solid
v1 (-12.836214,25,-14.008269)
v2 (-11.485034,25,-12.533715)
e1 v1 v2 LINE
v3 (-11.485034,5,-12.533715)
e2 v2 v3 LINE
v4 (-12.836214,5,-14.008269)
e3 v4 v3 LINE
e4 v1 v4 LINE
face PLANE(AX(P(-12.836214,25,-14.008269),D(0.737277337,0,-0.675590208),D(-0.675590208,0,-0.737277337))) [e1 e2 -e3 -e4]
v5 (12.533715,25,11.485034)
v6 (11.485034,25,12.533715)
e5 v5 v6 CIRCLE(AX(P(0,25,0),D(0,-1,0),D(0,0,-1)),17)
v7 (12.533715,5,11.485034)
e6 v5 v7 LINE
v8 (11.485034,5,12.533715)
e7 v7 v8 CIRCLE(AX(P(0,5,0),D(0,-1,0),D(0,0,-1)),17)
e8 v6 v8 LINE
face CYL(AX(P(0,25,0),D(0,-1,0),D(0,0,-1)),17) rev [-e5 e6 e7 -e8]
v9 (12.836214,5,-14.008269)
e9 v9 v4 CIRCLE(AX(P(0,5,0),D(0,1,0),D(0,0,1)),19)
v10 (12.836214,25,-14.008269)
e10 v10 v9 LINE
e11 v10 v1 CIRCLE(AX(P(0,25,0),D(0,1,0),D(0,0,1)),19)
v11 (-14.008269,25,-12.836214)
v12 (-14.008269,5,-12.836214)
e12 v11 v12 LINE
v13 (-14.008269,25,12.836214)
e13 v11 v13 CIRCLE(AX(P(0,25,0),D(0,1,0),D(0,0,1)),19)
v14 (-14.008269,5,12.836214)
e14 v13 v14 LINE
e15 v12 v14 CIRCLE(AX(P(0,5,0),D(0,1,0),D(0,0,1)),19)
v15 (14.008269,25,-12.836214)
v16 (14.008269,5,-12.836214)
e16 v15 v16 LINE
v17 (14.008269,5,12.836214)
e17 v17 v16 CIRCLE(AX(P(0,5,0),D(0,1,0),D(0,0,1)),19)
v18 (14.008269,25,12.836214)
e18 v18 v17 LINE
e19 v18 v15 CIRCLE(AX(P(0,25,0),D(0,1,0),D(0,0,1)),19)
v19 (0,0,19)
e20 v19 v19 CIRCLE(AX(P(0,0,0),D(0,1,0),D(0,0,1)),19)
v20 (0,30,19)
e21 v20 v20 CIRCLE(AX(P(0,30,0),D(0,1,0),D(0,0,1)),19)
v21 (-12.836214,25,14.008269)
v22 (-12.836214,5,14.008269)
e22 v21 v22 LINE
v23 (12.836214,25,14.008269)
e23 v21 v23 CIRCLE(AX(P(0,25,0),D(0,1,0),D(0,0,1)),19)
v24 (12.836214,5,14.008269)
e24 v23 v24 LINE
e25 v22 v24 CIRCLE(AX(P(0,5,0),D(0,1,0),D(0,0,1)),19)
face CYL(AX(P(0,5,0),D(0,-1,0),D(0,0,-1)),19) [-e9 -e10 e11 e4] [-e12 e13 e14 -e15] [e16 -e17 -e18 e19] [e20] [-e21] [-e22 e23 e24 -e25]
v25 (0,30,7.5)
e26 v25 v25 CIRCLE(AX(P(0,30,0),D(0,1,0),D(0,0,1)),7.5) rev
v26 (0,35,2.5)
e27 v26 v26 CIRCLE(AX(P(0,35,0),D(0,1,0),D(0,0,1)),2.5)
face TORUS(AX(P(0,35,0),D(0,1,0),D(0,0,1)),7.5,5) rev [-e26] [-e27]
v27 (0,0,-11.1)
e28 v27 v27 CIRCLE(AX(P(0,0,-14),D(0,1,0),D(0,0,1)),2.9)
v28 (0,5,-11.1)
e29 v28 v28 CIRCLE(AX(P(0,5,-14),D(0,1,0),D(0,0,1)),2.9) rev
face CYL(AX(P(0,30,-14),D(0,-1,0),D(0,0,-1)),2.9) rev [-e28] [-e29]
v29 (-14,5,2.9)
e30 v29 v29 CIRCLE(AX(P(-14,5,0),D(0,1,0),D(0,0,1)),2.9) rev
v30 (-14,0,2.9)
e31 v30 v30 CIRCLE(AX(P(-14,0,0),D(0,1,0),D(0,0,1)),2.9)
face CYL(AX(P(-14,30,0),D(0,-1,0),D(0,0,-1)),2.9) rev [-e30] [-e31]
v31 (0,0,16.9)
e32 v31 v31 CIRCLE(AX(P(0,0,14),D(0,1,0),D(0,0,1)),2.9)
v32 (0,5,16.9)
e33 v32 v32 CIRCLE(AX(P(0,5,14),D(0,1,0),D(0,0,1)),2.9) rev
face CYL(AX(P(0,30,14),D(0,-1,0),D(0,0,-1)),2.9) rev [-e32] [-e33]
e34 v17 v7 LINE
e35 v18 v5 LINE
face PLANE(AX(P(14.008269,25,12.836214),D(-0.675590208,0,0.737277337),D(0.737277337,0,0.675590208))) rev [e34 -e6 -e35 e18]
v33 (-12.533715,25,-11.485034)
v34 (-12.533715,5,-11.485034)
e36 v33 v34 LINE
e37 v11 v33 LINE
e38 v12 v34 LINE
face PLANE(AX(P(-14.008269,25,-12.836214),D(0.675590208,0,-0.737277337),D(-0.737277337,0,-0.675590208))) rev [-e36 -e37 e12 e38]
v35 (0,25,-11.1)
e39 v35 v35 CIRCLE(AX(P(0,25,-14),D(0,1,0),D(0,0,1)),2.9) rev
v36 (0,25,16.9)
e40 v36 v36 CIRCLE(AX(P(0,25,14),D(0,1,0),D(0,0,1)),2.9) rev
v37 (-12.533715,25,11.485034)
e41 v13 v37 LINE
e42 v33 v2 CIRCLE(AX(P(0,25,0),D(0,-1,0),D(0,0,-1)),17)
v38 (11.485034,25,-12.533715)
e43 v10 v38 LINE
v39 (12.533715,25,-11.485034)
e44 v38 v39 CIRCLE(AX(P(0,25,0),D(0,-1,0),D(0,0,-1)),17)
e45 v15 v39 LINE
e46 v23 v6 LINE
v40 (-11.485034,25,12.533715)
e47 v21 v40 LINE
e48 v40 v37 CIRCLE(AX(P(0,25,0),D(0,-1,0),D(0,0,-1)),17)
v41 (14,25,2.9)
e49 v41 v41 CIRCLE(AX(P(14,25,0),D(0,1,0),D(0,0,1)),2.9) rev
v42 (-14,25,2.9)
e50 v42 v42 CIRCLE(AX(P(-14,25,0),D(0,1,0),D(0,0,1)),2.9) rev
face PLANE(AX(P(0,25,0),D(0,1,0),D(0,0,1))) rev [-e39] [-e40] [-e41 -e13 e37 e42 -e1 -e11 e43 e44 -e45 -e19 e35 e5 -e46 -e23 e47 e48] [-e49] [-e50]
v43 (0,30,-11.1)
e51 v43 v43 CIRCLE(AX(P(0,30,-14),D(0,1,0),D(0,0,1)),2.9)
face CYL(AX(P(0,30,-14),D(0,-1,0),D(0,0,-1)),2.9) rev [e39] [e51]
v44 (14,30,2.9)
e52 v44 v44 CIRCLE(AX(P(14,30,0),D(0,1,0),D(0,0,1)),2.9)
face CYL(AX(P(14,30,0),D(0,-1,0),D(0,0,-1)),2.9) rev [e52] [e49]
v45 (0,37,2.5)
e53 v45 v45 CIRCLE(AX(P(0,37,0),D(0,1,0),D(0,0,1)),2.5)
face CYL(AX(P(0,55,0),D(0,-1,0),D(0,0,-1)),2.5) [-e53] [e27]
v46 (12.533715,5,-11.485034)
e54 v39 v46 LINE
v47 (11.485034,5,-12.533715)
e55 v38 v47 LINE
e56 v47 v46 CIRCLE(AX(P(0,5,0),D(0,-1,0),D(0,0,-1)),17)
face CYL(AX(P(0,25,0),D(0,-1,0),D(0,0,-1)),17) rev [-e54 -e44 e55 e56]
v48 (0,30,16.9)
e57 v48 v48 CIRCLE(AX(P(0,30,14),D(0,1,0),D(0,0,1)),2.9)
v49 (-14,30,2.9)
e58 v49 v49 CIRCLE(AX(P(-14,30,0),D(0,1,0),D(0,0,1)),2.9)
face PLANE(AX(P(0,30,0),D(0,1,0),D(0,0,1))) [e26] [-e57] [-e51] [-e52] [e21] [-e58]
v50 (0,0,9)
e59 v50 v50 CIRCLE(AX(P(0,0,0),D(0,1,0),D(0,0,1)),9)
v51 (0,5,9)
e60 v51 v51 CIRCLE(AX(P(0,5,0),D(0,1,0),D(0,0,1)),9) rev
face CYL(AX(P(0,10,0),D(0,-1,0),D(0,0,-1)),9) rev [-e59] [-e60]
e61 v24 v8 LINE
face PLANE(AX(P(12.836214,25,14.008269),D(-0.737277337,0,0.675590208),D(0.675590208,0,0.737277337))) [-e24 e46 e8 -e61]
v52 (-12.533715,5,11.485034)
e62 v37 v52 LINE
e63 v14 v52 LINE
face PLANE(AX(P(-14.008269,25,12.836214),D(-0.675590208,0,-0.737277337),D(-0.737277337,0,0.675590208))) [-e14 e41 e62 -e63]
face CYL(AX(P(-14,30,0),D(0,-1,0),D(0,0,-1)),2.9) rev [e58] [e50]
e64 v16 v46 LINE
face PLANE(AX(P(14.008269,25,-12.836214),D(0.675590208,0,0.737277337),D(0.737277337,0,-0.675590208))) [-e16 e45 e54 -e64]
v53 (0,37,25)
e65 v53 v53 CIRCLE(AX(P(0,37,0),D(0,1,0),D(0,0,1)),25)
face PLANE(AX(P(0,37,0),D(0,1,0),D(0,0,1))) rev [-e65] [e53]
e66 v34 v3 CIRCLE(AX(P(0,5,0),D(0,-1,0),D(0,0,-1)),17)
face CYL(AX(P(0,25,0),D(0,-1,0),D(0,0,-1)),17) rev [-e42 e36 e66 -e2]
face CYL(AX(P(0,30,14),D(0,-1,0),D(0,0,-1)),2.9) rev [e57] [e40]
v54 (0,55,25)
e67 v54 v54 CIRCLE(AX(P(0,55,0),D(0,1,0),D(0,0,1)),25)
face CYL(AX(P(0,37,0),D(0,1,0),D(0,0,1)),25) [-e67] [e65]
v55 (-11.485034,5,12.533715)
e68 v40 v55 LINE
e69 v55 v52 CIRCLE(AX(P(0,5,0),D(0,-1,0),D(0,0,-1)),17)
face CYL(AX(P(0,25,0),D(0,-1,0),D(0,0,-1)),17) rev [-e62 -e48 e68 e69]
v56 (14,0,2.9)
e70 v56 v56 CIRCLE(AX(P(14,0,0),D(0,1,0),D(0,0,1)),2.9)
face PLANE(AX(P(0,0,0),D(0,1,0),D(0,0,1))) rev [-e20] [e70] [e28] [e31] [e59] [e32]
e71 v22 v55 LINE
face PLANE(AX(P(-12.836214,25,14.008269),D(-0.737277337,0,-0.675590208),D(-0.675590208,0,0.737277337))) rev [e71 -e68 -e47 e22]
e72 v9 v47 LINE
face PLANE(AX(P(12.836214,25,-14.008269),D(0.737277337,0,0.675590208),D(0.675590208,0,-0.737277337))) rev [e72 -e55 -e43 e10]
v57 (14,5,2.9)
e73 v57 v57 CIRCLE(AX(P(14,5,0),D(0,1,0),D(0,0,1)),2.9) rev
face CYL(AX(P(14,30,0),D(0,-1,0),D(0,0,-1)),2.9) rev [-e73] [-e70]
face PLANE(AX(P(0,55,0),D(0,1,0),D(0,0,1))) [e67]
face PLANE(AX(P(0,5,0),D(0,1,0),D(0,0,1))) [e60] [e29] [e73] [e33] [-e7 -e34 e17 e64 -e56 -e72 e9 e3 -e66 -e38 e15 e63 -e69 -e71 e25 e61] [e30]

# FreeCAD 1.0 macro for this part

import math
import FreeCAD as App
import Part
import Sketcher

V = App.Vector
Q = App.Units.Quantity


def edges_at(feature, points):
    """Names of the edges that pass closest to the given points."""
    edges = feature.Shape.Edges
    near = lambda p: min(range(len(edges)), key=lambda i: edges[i].distToShape(Part.Vertex(*p))[0])
    return sorted({f"Edge{near(p) + 1}" for p in points})

doc = App.newDocument("Part")
body = doc.addObject("PartDesign::Body", "Body")

# Sketch on XZ plane
sketch1 = body.newObject("Sketcher::SketchObject", "Sketch")
sketch1.AttachmentSupport = (doc.getObject("XZ_Plane"), [""])
sketch1.MapMode = "FlatFace"
sketch1.addGeometry(Part.Circle(V(0, 0, 0), V(0, 0, 1), 19), False)
sketch1.addConstraint(Sketcher.Constraint("Coincident", 0, 3, -1, 1))
sketch1.addConstraint(Sketcher.Constraint("Diameter", 0, Q("38 mm")))
pad1 = body.newObject("PartDesign::Pad", "Pad")
pad1.Profile = sketch1
pad1.Length = 5
pad1.Reversed = True

# Sketch on XZ plane
sketch2 = body.newObject("Sketcher::SketchObject", "Sketch001")
sketch2.AttachmentSupport = (doc.getObject("XZ_Plane"), [""])
sketch2.MapMode = "FlatFace"
sketch2.AttachmentOffset = App.Placement(V(0, 0, -5), App.Rotation())
sketch2.addGeometry(Part.LineSegment(V(-14, -12.8, 0), V(-12.5, -11.5, 0)), False)
sketch2.addGeometry(Part.ArcOfCircle(Part.Circle(V(0, 0, 0), V(0, 0, 1), 17), math.radians(-137.5), math.radians(-132.5)), False)
sketch2.addGeometry(Part.LineSegment(V(-11.5, -12.5, 0), V(-12.8, -14, 0)), False)
sketch2.addGeometry(Part.ArcOfCircle(Part.Circle(V(0, 0, 0), V(0, 0, 1), 19), math.radians(-137.5), math.radians(-132.5)), False)
sketch2.addGeometry(Part.LineSegment(V(12.5, -11.5, 0), V(14, -12.8, 0)), False)
sketch2.addGeometry(Part.ArcOfCircle(Part.Circle(V(0, 0, 0), V(0, 0, 1), 19), math.radians(-47.5), math.radians(-42.5)), False)
sketch2.addGeometry(Part.LineSegment(V(12.8, -14, 0), V(11.5, -12.5, 0)), False)
sketch2.addGeometry(Part.ArcOfCircle(Part.Circle(V(0, 0, 0), V(0, 0, 1), 17), math.radians(-47.5), math.radians(-42.5)), False)
sketch2.addGeometry(Part.LineSegment(V(11.5, 12.5, 0), V(12.8, 14, 0)), False)
sketch2.addGeometry(Part.ArcOfCircle(Part.Circle(V(0, 0, 0), V(0, 0, 1), 19), math.radians(42.5), math.radians(47.5)), False)
sketch2.addGeometry(Part.LineSegment(V(14, 12.8, 0), V(12.5, 11.5, 0)), False)
sketch2.addGeometry(Part.ArcOfCircle(Part.Circle(V(0, 0, 0), V(0, 0, 1), 17), math.radians(42.5), math.radians(47.5)), False)
sketch2.addGeometry(Part.LineSegment(V(-12.5, 11.5, 0), V(-14, 12.8, 0)), False)
sketch2.addGeometry(Part.ArcOfCircle(Part.Circle(V(0, 0, 0), V(0, 0, 1), 19), math.radians(132.5), math.radians(137.5)), False)
sketch2.addGeometry(Part.LineSegment(V(-12.8, 14, 0), V(-11.5, 12.5, 0)), False)
sketch2.addGeometry(Part.ArcOfCircle(Part.Circle(V(0, 0, 0), V(0, 0, 1), 17), math.radians(132.5), math.radians(137.5)), False)
sketch2.addConstraint(Sketcher.Constraint("Coincident", 0, 2, 1, 1))
sketch2.addConstraint(Sketcher.Constraint("Coincident", 1, 2, 2, 1))
sketch2.addConstraint(Sketcher.Constraint("Coincident", 2, 2, 3, 2))
sketch2.addConstraint(Sketcher.Constraint("Coincident", 3, 1, 0, 1))
sketch2.addConstraint(Sketcher.Constraint("Coincident", 4, 2, 5, 2))
sketch2.addConstraint(Sketcher.Constraint("Coincident", 5, 1, 6, 1))
sketch2.addConstraint(Sketcher.Constraint("Coincident", 6, 2, 7, 1))
sketch2.addConstraint(Sketcher.Constraint("Coincident", 7, 2, 4, 1))
sketch2.addConstraint(Sketcher.Constraint("Coincident", 8, 2, 9, 2))
sketch2.addConstraint(Sketcher.Constraint("Coincident", 9, 1, 10, 1))
sketch2.addConstraint(Sketcher.Constraint("Coincident", 10, 2, 11, 1))
sketch2.addConstraint(Sketcher.Constraint("Coincident", 11, 2, 8, 1))
sketch2.addConstraint(Sketcher.Constraint("Coincident", 12, 2, 13, 2))
sketch2.addConstraint(Sketcher.Constraint("Coincident", 13, 1, 14, 1))
sketch2.addConstraint(Sketcher.Constraint("Coincident", 14, 2, 15, 1))
sketch2.addConstraint(Sketcher.Constraint("Coincident", 15, 2, 12, 1))
sketch2.addConstraint(Sketcher.Constraint("Coincident", 1, 3, -1, 1))
sketch2.addConstraint(Sketcher.Constraint("Coincident", 3, 3, -1, 1))
sketch2.addConstraint(Sketcher.Constraint("Coincident", 5, 3, -1, 1))
sketch2.addConstraint(Sketcher.Constraint("Coincident", 7, 3, -1, 1))
sketch2.addConstraint(Sketcher.Constraint("Coincident", 9, 3, -1, 1))
sketch2.addConstraint(Sketcher.Constraint("Coincident", 11, 3, -1, 1))
sketch2.addConstraint(Sketcher.Constraint("Coincident", 13, 3, -1, 1))
sketch2.addConstraint(Sketcher.Constraint("Coincident", 15, 3, -1, 1))
sketch2.addConstraint(Sketcher.Constraint("Equal", 3, 5))
sketch2.addConstraint(Sketcher.Constraint("Equal", 1, 7))
sketch2.addConstraint(Sketcher.Constraint("Equal", 5, 9))
sketch2.addConstraint(Sketcher.Constraint("Equal", 7, 11))
sketch2.addConstraint(Sketcher.Constraint("Equal", 9, 13))
sketch2.addConstraint(Sketcher.Constraint("Equal", 11, 15))
sketch2.addConstraint(Sketcher.Constraint("Perpendicular", 2, 4))
sketch2.addConstraint(Sketcher.Constraint("Perpendicular", 0, 6))
sketch2.addConstraint(Sketcher.Constraint("Perpendicular", 4, 8))
sketch2.addConstraint(Sketcher.Constraint("Perpendicular", 6, 10))
sketch2.addConstraint(Sketcher.Constraint("Perpendicular", 8, 12))
sketch2.addConstraint(Sketcher.Constraint("Perpendicular", 10, 14))
sketch2.addConstraint(Sketcher.Constraint("Horizontal", 3, 1, 4, 2))
sketch2.addConstraint(Sketcher.Constraint("Horizontal", 2, 2, 5, 1))
sketch2.addConstraint(Sketcher.Constraint("Horizontal", 1, 2, 6, 2))
sketch2.addConstraint(Sketcher.Constraint("Horizontal", 9, 1, 12, 2))
sketch2.addConstraint(Sketcher.Constraint("Horizontal", 8, 2, 13, 1))
sketch2.addConstraint(Sketcher.Constraint("Vertical", 5, 1, 8, 2))
sketch2.addConstraint(Sketcher.Constraint("Vertical", 4, 2, 9, 1))
sketch2.addConstraint(Sketcher.Constraint("Radius", 1, Q("17 mm")))
sketch2.addConstraint(Sketcher.Constraint("Radius", 3, Q("18.999999 mm")))
sketch2.addConstraint(Sketcher.Constraint("Angle", 0, Q("42.5 deg")))
sketch2.addConstraint(Sketcher.Constraint("DistanceX", 2, 2, 0, 2, Q("0.302499 mm")))
sketch2.addConstraint(Sketcher.Constraint("DistanceY", 4, 2, 6, 2, Q("0.302499 mm")))
pad2 = body.newObject("PartDesign::Pad", "Pad001")
pad2.Profile = sketch2
pad2.Length = 20
pad2.Reversed = True

# Sketch on XZ plane
sketch3 = body.newObject("Sketcher::SketchObject", "Sketch002")
sketch3.AttachmentSupport = (doc.getObject("XZ_Plane"), [""])
sketch3.MapMode = "FlatFace"
sketch3.AttachmentOffset = App.Placement(V(0, 0, -25), App.Rotation())
sketch3.addGeometry(Part.Circle(V(0, 0, 0), V(0, 0, 1), 19), False)
sketch3.addConstraint(Sketcher.Constraint("Coincident", 0, 3, -1, 1))
sketch3.addConstraint(Sketcher.Constraint("Diameter", 0, Q("38 mm")))
pad3 = body.newObject("PartDesign::Pad", "Pad002")
pad3.Profile = sketch3
pad3.Length = 5
pad3.Reversed = True

# Sketch on XZ plane
sketch4 = body.newObject("Sketcher::SketchObject", "Sketch003")
sketch4.AttachmentSupport = (doc.getObject("XZ_Plane"), [""])
sketch4.MapMode = "FlatFace"
sketch4.AttachmentOffset = App.Placement(V(0, 0, -5), App.Rotation())
sketch4.addGeometry(Part.Circle(V(14, 0, 0), V(0, 0, 1), 2.9), False)
sketch4.addGeometry(Part.Circle(V(0, 14, 0), V(0, 0, 1), 2.9), False)
sketch4.addGeometry(Part.Circle(V(0, -14, 0), V(0, 0, 1), 2.9), False)
sketch4.addGeometry(Part.Circle(V(-14, 0, 0), V(0, 0, 1), 2.9), False)
sketch4.addConstraint(Sketcher.Constraint("Equal", 0, 1))
sketch4.addConstraint(Sketcher.Constraint("Equal", 1, 2))
sketch4.addConstraint(Sketcher.Constraint("Equal", 2, 3))
sketch4.addConstraint(Sketcher.Constraint("Symmetric", 1, 3, 2, 3, -1, 1))
sketch4.addConstraint(Sketcher.Constraint("Symmetric", 0, 3, 3, 3, -1, 1))
sketch4.addConstraint(Sketcher.Constraint("PointOnObject", 0, 3, -1))
sketch4.addConstraint(Sketcher.Constraint("PointOnObject", 1, 3, -2))
sketch4.addConstraint(Sketcher.Constraint("Diameter", 0, Q("5.8 mm")))
sketch4.addConstraint(Sketcher.Constraint("DistanceX", -1, 1, 0, 3, Q("14 mm")))
sketch4.addConstraint(Sketcher.Constraint("DistanceY", -1, 1, 1, 3, Q("14 mm")))
pocket1 = body.newObject("PartDesign::Pocket", "Pocket")
pocket1.Profile = sketch4
pocket1.Type = "ThroughAll"
pocket1.Midplane = True

# Sketch on XZ plane
sketch5 = body.newObject("Sketcher::SketchObject", "Sketch004")
sketch5.AttachmentSupport = (doc.getObject("XZ_Plane"), [""])
sketch5.MapMode = "FlatFace"
sketch5.addGeometry(Part.Circle(V(0, 0, 0), V(0, 0, 1), 9), False)
sketch5.addConstraint(Sketcher.Constraint("Coincident", 0, 3, -1, 1))
sketch5.addConstraint(Sketcher.Constraint("Diameter", 0, Q("18 mm")))
pocket2 = body.newObject("PartDesign::Pocket", "Pocket001")
pocket2.Profile = sketch5
pocket2.Length = 10

# Sketch on XZ plane
sketch6 = body.newObject("Sketcher::SketchObject", "Sketch005")
sketch6.AttachmentSupport = (doc.getObject("XZ_Plane"), [""])
sketch6.MapMode = "FlatFace"
sketch6.AttachmentOffset = App.Placement(V(0, 0, -30), App.Rotation())
sketch6.addGeometry(Part.Circle(V(0, 0, 0), V(0, 0, 1), 2.5), False)
sketch6.addConstraint(Sketcher.Constraint("Coincident", 0, 3, -1, 1))
sketch6.addConstraint(Sketcher.Constraint("Diameter", 0, Q("5 mm")))
pad4 = body.newObject("PartDesign::Pad", "Pad003")
pad4.Profile = sketch6
pad4.Length = 25
pad4.Reversed = True
doc.recompute()

fillet = body.newObject("PartDesign::Fillet", "Fillet")
fillet.Base = (pad4, edges_at(pad4, [(0, 30, -2.5)]))
fillet.Radius = 5

# Sketch on XZ plane
sketch7 = body.newObject("Sketcher::SketchObject", "Sketch006")
sketch7.AttachmentSupport = (doc.getObject("XZ_Plane"), [""])
sketch7.MapMode = "FlatFace"
sketch7.AttachmentOffset = App.Placement(V(0, 0, -55), App.Rotation())
sketch7.addGeometry(Part.Circle(V(0, 0, 0), V(0, 0, 1), 25), False)
sketch7.addConstraint(Sketcher.Constraint("Coincident", 0, 3, -1, 1))
sketch7.addConstraint(Sketcher.Constraint("Diameter", 0, Q("50 mm")))
pad5 = body.newObject("PartDesign::Pad", "Pad004")
pad5.Profile = sketch7
pad5.Length = 18

doc.recompute()
